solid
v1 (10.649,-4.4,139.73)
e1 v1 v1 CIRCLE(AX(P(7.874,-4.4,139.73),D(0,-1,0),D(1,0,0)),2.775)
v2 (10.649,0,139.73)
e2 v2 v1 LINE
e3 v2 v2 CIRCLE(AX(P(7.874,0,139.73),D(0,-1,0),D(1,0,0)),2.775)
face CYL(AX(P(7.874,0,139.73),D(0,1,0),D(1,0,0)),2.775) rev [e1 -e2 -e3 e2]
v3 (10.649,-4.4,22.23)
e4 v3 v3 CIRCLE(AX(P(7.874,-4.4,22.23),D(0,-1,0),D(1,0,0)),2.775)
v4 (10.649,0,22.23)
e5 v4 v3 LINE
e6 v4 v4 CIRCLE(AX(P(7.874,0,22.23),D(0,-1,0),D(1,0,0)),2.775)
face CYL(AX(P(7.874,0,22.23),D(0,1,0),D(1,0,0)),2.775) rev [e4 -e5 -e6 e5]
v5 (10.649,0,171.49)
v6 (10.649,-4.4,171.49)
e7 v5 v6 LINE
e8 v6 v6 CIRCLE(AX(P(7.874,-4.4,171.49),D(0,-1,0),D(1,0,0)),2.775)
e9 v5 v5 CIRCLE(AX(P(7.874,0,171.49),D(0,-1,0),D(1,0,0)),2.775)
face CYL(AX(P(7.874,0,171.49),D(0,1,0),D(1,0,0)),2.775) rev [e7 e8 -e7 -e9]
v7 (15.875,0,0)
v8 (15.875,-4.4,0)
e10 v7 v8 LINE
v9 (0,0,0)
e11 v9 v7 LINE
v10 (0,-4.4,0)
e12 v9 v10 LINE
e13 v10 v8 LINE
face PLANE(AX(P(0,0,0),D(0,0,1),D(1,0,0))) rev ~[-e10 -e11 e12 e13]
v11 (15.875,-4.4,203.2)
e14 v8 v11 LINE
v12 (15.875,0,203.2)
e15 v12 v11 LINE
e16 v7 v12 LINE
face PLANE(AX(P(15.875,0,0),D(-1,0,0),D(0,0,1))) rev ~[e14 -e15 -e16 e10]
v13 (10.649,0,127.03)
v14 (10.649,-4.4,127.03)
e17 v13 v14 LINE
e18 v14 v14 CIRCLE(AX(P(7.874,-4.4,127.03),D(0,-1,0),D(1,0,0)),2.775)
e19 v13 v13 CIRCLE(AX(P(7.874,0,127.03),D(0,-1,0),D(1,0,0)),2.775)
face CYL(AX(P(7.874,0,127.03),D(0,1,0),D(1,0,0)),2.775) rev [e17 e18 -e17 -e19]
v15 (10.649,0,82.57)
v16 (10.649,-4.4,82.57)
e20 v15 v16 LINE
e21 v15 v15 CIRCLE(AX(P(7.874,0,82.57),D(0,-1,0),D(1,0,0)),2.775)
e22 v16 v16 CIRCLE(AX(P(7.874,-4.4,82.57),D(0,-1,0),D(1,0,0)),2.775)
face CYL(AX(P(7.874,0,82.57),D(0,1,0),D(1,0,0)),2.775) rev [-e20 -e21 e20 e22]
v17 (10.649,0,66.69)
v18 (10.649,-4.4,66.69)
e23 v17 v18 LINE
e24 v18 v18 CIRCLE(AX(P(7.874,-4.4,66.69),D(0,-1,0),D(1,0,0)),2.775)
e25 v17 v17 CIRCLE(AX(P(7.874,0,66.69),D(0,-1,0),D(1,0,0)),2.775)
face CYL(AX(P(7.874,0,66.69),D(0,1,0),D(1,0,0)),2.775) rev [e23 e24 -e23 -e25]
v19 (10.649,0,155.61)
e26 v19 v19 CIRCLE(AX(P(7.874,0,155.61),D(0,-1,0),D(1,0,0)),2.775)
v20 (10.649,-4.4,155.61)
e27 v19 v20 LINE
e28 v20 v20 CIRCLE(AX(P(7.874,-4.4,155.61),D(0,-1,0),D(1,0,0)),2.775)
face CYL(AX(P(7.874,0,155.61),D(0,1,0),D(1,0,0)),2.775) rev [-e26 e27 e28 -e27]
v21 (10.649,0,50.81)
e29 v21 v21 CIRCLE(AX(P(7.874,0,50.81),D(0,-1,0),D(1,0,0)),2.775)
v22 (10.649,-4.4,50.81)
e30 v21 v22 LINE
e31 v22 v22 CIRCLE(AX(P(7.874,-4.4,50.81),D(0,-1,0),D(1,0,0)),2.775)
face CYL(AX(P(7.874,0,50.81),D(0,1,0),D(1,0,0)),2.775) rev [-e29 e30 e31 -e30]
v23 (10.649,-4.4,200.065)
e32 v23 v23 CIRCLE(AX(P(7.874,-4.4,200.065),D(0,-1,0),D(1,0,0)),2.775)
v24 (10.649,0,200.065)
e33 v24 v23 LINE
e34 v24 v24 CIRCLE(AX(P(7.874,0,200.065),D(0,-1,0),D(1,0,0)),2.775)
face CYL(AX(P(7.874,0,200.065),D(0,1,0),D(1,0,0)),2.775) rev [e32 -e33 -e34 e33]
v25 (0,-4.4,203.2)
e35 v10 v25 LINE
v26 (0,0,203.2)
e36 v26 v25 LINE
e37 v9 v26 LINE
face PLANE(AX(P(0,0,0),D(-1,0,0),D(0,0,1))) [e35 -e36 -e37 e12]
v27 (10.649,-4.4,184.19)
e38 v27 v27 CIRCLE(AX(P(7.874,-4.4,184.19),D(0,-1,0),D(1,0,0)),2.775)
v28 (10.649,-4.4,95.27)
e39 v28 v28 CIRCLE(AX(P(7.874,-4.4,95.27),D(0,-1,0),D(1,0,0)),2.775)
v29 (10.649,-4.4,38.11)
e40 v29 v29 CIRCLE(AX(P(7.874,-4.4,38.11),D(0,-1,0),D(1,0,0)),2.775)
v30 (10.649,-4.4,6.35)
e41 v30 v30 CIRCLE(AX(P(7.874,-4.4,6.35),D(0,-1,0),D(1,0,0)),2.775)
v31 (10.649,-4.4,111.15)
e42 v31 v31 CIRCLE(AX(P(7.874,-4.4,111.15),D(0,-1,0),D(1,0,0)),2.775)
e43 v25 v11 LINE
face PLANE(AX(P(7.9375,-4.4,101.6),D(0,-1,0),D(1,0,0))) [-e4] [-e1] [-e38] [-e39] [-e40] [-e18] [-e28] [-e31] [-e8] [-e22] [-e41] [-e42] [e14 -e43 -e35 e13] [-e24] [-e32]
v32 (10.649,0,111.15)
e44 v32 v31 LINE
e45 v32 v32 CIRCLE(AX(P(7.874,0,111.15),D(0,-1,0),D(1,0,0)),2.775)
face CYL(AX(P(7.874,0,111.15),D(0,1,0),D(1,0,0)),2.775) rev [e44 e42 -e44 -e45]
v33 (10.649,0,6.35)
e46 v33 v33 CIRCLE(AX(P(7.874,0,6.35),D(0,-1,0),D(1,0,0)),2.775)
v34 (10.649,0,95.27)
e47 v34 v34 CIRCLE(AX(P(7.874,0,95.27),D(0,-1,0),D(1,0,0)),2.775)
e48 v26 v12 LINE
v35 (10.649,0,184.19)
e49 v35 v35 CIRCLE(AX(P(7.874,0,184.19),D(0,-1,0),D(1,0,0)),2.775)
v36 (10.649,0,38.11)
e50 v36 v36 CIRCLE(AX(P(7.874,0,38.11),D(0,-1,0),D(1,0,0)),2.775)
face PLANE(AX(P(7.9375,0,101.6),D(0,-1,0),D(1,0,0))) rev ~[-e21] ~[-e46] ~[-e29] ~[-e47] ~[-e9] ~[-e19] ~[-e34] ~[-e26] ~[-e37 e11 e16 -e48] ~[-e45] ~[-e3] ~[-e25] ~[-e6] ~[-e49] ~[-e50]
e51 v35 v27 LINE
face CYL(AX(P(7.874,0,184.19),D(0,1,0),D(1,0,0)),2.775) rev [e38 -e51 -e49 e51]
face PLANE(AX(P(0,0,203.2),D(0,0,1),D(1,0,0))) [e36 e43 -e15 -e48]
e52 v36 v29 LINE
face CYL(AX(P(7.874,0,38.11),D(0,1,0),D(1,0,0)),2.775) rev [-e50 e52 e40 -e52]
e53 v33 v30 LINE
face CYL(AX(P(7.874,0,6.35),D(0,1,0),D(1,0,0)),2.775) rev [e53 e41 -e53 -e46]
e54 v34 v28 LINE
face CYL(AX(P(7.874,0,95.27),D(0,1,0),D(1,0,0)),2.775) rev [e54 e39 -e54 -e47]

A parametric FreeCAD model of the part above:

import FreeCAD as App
import Part
import Sketcher
from FreeCAD import Vector
Q = App.Units.Quantity


def add_polygon(sketch, points):
    """Adds a closed chain of lines whose ends are joined by coincident constraints."""
    first, n = sketch.GeometryCount, len(points)
    for a, b in zip(points, points[1:] + points[:1]):
        sketch.addGeometry(Part.LineSegment(App.Vector(*a, 0), App.Vector(*b, 0)), False)
    for i in range(n):
        sketch.addConstraint(Sketcher.Constraint("Coincident", first + i, 2, first + (i + 1) % n, 1))

doc = App.newDocument("Part")
body = doc.addObject("PartDesign::Body", "Body")

# Sketch on XZ plane
sketch1 = doc.addObject("Sketcher::SketchObject", "Sketch")
body.addObject(sketch1)
sketch1.AttachmentSupport = (doc.XZ_Plane, [""])
sketch1.MapMode = "FlatFace"
add_polygon(sketch1, [(0, 203.2), (0, 0), (15.875, 0), (15.875, 203.2)])  # lines 0-3
sketch1.addGeometry(Part.Circle(Vector(7.874, 6.35, 0), Vector(0, 0, 1), 2.775), False)  # 4
sketch1.addGeometry(Part.Circle(Vector(7.874, 22.23, 0), Vector(0, 0, 1), 2.775), False)  # 5
sketch1.addGeometry(Part.Circle(Vector(7.874, 38.11, 0), Vector(0, 0, 1), 2.775), False)  # 6
sketch1.addGeometry(Part.Circle(Vector(7.874, 50.81, 0), Vector(0, 0, 1), 2.775), False)  # 7
sketch1.addGeometry(Part.Circle(Vector(7.874, 66.69, 0), Vector(0, 0, 1), 2.775), False)  # 8
sketch1.addGeometry(Part.Circle(Vector(7.874, 82.57, 0), Vector(0, 0, 1), 2.775), False)  # 9
sketch1.addGeometry(Part.Circle(Vector(7.874, 95.27, 0), Vector(0, 0, 1), 2.775), False)  # 10
sketch1.addGeometry(Part.Circle(Vector(7.874, 111.15, 0), Vector(0, 0, 1), 2.775), False)  # 11
sketch1.addGeometry(Part.Circle(Vector(7.874, 127.03, 0), Vector(0, 0, 1), 2.775), False)  # 12
sketch1.addGeometry(Part.Circle(Vector(7.874, 139.73, 0), Vector(0, 0, 1), 2.775), False)  # 13
sketch1.addGeometry(Part.Circle(Vector(7.874, 155.61, 0), Vector(0, 0, 1), 2.775), False)  # 14
sketch1.addGeometry(Part.Circle(Vector(7.874, 171.49, 0), Vector(0, 0, 1), 2.775), False)  # 15
sketch1.addGeometry(Part.Circle(Vector(7.874, 184.19, 0), Vector(0, 0, 1), 2.775), False)  # 16
sketch1.addGeometry(Part.Circle(Vector(7.874, 200.065, 0), Vector(0, 0, 1), 2.775), False)  # 17
sketch1.addConstraint([
    Sketcher.Constraint("Vertical", 0),
    Sketcher.Constraint("Horizontal", 1),
    Sketcher.Constraint("Vertical", 2),
    Sketcher.Constraint("Horizontal", 3),
    Sketcher.Constraint("Coincident", 0, 2, -1, 1),
    Sketcher.Constraint("Equal", 4, 5),
    Sketcher.Constraint("Equal", 5, 6),
    Sketcher.Constraint("Equal", 6, 7),
    Sketcher.Constraint("Equal", 7, 8),
    Sketcher.Constraint("Equal", 8, 9),
    Sketcher.Constraint("Equal", 9, 10),
    Sketcher.Constraint("Equal", 10, 11),
    Sketcher.Constraint("Equal", 11, 12),
    Sketcher.Constraint("Equal", 12, 13),
    Sketcher.Constraint("Equal", 13, 14),
    Sketcher.Constraint("Equal", 14, 15),
    Sketcher.Constraint("Equal", 15, 16),
    Sketcher.Constraint("Equal", 16, 17),
    Sketcher.Constraint("Vertical", 4, 3, 5, 3),
    Sketcher.Constraint("Vertical", 5, 3, 6, 3),
    Sketcher.Constraint("Vertical", 6, 3, 7, 3),
    Sketcher.Constraint("Vertical", 7, 3, 8, 3),
    Sketcher.Constraint("Vertical", 8, 3, 9, 3),
    Sketcher.Constraint("Vertical", 9, 3, 10, 3),
    Sketcher.Constraint("Vertical", 10, 3, 11, 3),
    Sketcher.Constraint("Vertical", 11, 3, 12, 3),
    Sketcher.Constraint("Vertical", 12, 3, 13, 3),
    Sketcher.Constraint("Vertical", 13, 3, 14, 3),
    Sketcher.Constraint("Vertical", 14, 3, 15, 3),
    Sketcher.Constraint("Vertical", 15, 3, 16, 3),
    Sketcher.Constraint("Vertical", 16, 3, 17, 3),
    Sketcher.Constraint("DistanceY", 0, 2, 0, 1, Q("8 in")),
    Sketcher.Constraint("DistanceY", 6, 3, 7, 3, Q("0.5 in")),
    Sketcher.Constraint("DistanceY", 9, 3, 10, 3, Q("0.5 in")),
    Sketcher.Constraint("DistanceY", 12, 3, 13, 3, Q("0.5 in")),
    Sketcher.Constraint("DistanceY", 15, 3, 16, 3, Q("0.5 in")),
    Sketcher.Constraint("Diameter", 4, Q("5.55 mm")),
    Sketcher.Constraint("DistanceX", 1, 1, 1, 2, Q("0.625 in")),
    Sketcher.Constraint("DistanceX", -1, 1, 4, 3, Q("0.31 in")),
    Sketcher.Constraint("DistanceY", -1, 1, 4, 3, Q("0.25 in")),
    Sketcher.Constraint("DistanceY", 16, 3, 17, 3, Q("0.625 in")),
    Sketcher.Constraint("DistanceY", -1, 1, 5, 3, Q("22.23 mm")),
    Sketcher.Constraint("DistanceY", -1, 1, 6, 3, Q("38.11 mm")),
    Sketcher.Constraint("DistanceY", -1, 1, 8, 3, Q("66.69 mm")),
    Sketcher.Constraint("DistanceY", -1, 1, 9, 3, Q("82.57 mm")),
    Sketcher.Constraint("DistanceY", -1, 1, 11, 3, Q("111.15 mm")),
    Sketcher.Constraint("DistanceY", -1, 1, 12, 3, Q("127.03 mm")),
    Sketcher.Constraint("DistanceY", -1, 1, 14, 3, Q("155.61 mm")),
    Sketcher.Constraint("DistanceY", -1, 1, 15, 3, Q("171.49 mm")),
])
pad1 = doc.addObject("PartDesign::Pad", "Pad")
body.addObject(pad1)
pad1.Profile = sketch1
pad1.Length = 4.4

doc.recompute()
